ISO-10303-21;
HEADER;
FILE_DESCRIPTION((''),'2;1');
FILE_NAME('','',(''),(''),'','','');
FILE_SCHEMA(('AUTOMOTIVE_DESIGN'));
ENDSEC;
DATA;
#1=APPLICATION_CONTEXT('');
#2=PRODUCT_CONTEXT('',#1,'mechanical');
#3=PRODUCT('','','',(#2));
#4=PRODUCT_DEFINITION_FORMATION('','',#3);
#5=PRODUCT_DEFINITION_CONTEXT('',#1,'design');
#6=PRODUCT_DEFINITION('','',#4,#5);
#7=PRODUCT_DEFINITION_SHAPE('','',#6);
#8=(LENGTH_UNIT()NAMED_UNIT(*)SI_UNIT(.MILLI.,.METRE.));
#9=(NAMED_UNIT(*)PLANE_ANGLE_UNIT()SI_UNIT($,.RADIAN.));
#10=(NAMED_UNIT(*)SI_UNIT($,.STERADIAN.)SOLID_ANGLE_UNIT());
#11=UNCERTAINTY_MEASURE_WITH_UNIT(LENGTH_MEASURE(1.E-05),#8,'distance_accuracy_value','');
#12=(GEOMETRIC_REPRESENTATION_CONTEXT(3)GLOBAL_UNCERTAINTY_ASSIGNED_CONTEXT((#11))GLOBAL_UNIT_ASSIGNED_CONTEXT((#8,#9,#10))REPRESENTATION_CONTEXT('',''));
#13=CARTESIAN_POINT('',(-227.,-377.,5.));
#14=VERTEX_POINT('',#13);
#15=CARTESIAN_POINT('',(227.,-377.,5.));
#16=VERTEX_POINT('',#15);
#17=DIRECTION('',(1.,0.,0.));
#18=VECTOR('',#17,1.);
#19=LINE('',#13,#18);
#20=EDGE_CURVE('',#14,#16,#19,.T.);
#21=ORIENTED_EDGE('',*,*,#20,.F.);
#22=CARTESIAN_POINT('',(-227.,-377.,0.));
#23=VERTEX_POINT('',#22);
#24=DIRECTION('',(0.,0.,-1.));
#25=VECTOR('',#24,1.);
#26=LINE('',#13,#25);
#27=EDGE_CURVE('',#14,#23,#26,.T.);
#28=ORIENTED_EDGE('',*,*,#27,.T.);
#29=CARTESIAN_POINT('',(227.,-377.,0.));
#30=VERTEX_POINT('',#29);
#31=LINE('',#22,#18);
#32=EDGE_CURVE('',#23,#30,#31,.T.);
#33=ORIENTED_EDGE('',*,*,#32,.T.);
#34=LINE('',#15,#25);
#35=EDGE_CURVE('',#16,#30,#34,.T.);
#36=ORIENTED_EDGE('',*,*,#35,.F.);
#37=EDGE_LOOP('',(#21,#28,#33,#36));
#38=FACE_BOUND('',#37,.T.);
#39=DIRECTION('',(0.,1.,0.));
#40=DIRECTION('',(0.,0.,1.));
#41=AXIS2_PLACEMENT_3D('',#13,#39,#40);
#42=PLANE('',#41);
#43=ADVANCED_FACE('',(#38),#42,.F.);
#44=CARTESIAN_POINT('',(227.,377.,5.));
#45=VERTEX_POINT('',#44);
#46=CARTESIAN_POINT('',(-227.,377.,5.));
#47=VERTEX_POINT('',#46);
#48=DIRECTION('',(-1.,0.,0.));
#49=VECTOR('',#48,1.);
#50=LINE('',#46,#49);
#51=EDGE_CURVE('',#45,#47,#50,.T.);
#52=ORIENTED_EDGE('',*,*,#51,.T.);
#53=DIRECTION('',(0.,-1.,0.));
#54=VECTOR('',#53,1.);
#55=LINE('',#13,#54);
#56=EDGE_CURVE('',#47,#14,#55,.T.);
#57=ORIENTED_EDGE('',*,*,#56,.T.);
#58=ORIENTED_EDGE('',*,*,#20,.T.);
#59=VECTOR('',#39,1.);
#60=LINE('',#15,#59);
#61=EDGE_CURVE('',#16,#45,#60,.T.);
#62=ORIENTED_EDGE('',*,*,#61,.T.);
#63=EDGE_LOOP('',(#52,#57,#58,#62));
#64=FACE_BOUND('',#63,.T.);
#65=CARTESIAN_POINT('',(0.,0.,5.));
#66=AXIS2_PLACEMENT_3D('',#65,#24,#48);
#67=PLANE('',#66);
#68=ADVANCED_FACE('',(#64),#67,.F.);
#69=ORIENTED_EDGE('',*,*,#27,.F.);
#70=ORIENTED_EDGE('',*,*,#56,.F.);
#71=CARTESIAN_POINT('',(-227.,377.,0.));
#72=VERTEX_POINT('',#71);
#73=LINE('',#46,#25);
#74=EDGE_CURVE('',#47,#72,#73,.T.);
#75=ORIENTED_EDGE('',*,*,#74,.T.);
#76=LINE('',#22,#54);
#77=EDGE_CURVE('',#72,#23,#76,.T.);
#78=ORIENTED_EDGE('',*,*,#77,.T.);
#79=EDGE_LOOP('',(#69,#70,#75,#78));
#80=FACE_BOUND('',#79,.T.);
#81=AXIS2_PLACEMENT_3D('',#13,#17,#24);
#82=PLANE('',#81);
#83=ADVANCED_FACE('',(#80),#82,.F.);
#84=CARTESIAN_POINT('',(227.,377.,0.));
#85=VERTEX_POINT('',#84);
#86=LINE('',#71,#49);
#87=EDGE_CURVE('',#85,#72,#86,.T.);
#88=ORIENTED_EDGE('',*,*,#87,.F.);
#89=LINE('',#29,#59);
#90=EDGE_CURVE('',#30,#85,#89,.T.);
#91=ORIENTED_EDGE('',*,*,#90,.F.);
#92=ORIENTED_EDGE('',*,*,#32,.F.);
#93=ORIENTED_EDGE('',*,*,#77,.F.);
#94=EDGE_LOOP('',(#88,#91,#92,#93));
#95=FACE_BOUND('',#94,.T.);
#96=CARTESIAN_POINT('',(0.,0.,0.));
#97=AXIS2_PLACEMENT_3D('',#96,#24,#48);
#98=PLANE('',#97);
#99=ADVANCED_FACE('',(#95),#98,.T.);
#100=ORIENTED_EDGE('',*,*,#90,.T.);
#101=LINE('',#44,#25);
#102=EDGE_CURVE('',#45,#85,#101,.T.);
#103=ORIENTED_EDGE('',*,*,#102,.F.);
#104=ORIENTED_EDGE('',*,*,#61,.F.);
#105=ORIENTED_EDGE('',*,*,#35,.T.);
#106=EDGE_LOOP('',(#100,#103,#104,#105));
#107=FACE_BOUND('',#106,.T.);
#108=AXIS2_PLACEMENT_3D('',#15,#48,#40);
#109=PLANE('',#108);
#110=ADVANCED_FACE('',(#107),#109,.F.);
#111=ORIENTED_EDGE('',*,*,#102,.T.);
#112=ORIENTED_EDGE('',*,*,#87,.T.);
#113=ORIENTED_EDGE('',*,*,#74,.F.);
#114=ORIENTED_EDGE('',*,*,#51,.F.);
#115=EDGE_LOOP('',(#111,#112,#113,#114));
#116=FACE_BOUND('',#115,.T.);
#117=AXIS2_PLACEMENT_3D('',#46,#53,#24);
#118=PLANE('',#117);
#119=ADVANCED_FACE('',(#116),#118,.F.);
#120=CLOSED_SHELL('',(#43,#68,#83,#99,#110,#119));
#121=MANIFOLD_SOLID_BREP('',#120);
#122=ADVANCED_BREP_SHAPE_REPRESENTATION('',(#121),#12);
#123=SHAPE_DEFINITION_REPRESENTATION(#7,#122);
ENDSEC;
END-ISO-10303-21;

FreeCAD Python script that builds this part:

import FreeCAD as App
import Part
import Sketcher


def add_polygon(sketch, points):
    """Adds a closed chain of lines whose ends are joined by coincident constraints."""
    first, n = sketch.GeometryCount, len(points)
    for a, b in zip(points, points[1:] + points[:1]):
        sketch.addGeometry(Part.LineSegment(App.Vector(*a, 0), App.Vector(*b, 0)), False)
    for i in range(n):
        sketch.addConstraint(Sketcher.Constraint("Coincident", first + i, 2, first + (i + 1) % n, 1))

doc = App.newDocument("Part")
params = doc.addObject("Spreadsheet::Sheet", "Params")
for row, (alias, value) in enumerate([
    ("sketch1_width", "454 mm"),
    ("sketch1_height", "754 mm"),
    ("pad1_length", "5 mm"),
], start=1):
    params.set(f"A{row}", alias)
    params.set(f"B{row}", "=" + value)
    params.setAlias(f"B{row}", alias)

body = doc.addObject("PartDesign::Body", "Body")

# Sketch on XY plane
sketch1 = body.newObject("Sketcher::SketchObject", "Sketch")
sketch1.AttachmentSupport = (doc.getObject("XY_Plane"), [""])
sketch1.MapMode = "FlatFace"
add_polygon(sketch1, [(-227, 377), (-227, -377), (227, -377), (227, 377)])  # lines 0-3
sketch1.addConstraint([
    Sketcher.Constraint("Vertical", 0),
    Sketcher.Constraint("Horizontal", 1),
    Sketcher.Constraint("Vertical", 2),
    Sketcher.Constraint("Horizontal", 3),
    Sketcher.Constraint("Symmetric", 0, 2, 2, 2, -1, 1),
    Sketcher.Constraint("DistanceX", 1, 1, 1, 2, 454.0),
    Sketcher.Constraint("DistanceY", 0, 2, 0, 1, 754.0),
])
sketch1.setExpression("Constraints[9]", "Params.sketch1_width")
sketch1.setExpression("Constraints[10]", "Params.sketch1_height")
pad1 = body.newObject("PartDesign::Pad", "Pad")
pad1.Profile = sketch1
pad1.setExpression("Length", "Params.pad1_length")

doc.recompute()
